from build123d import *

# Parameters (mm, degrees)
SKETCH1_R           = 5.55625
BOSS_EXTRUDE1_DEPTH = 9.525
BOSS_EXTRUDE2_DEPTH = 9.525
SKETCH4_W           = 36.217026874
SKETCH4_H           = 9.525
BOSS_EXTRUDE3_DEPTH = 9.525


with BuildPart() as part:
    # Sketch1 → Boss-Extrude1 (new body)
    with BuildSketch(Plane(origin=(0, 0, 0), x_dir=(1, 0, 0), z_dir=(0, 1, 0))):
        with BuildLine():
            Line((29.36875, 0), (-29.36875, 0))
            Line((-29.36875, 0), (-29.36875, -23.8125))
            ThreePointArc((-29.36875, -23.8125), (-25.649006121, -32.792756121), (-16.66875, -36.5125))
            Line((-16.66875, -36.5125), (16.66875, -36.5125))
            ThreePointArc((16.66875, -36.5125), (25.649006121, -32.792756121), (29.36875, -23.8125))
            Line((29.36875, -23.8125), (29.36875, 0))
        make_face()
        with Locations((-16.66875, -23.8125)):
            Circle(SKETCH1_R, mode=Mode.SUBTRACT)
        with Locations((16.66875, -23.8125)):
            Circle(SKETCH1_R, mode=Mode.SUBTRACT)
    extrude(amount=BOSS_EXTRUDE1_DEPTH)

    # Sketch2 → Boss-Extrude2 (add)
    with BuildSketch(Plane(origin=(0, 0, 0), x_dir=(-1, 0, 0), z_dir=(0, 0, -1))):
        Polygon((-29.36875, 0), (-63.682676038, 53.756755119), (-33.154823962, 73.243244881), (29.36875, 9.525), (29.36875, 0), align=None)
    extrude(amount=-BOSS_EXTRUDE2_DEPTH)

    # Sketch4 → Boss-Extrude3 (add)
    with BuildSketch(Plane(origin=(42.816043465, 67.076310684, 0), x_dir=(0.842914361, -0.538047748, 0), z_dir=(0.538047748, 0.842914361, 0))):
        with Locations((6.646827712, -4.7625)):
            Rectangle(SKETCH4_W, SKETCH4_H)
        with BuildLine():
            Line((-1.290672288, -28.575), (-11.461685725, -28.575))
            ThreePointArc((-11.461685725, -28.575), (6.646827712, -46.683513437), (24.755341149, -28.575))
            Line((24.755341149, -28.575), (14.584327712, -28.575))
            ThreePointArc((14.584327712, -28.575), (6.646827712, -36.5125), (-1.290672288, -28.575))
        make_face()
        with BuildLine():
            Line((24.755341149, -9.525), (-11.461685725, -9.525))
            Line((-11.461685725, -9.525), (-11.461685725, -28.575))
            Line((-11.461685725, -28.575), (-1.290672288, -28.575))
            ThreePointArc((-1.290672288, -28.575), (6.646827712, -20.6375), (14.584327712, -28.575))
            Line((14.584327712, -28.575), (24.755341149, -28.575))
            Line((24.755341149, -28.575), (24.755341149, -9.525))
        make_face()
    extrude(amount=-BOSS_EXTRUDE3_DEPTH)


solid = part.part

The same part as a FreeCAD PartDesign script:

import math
import FreeCAD as App
import Part
import Sketcher

V = App.Vector
Q = App.Units.Quantity

doc = App.newDocument("Part")
body = doc.addObject("PartDesign::Body", "Body")

# Sketch on XZ plane
sketch1 = body.newObject("Sketcher::SketchObject", "Sketch")
sketch1.AttachmentSupport = (doc.getObject("XZ_Plane"), [""])
sketch1.MapMode = "FlatFace"
sketch1.addGeometry(Part.LineSegment(V(29, 0, 0), V(-29, 0, 0)), False)
sketch1.addGeometry(Part.LineSegment(V(-29, 0, 0), V(-29, 24, 0)), False)
sketch1.addGeometry(Part.ArcOfCircle(Part.Circle(V(-17, 24, 0), V(0, 0, 1), 13), math.radians(90), math.radians(180)), False)
sketch1.addGeometry(Part.LineSegment(V(-17, 37, 0), V(17, 37, 0)), False)
sketch1.addGeometry(Part.ArcOfCircle(Part.Circle(V(17, 24, 0), V(0, 0, 1), 13), math.radians(0), math.radians(90)), False)
sketch1.addGeometry(Part.LineSegment(V(29, 24, 0), V(29, 0, 0)), False)
sketch1.addGeometry(Part.Circle(V(-17, 24, 0), V(0, 0, 1), 6), False)
sketch1.addGeometry(Part.Circle(V(17, 24, 0), V(0, 0, 1), 6), False)
sketch1.addConstraint(Sketcher.Constraint("Coincident", 0, 2, 1, 1))
sketch1.addConstraint(Sketcher.Constraint("Tangent", 1, 2, 2, 2))
sketch1.addConstraint(Sketcher.Constraint("Tangent", 2, 1, 3, 1))
sketch1.addConstraint(Sketcher.Constraint("Tangent", 3, 2, 4, 2))
sketch1.addConstraint(Sketcher.Constraint("Tangent", 4, 1, 5, 1))
sketch1.addConstraint(Sketcher.Constraint("Coincident", 5, 2, 0, 1))
sketch1.addConstraint(Sketcher.Constraint("Horizontal", 0))
sketch1.addConstraint(Sketcher.Constraint("Vertical", 1))
sketch1.addConstraint(Sketcher.Constraint("Horizontal", 3))
sketch1.addConstraint(Sketcher.Constraint("Vertical", 5))
sketch1.addConstraint(Sketcher.Constraint("Coincident", 6, 3, 2, 3))
sketch1.addConstraint(Sketcher.Constraint("Coincident", 7, 3, 4, 3))
sketch1.addConstraint(Sketcher.Constraint("Equal", 2, 4))
sketch1.addConstraint(Sketcher.Constraint("Equal", 6, 7))
sketch1.addConstraint(Sketcher.Constraint("Symmetric", 0, 2, 5, 2, -1, 1))
sketch1.addConstraint(Sketcher.Constraint("Radius", 2, Q("0.5 in")))
sketch1.addConstraint(Sketcher.Constraint("Diameter", 6, Q("0.4375 in")))
sketch1.addConstraint(Sketcher.Constraint("DistanceX", 0, 2, 0, 1, Q("2.3125 in")))
sketch1.addConstraint(Sketcher.Constraint("DistanceY", 1, 1, 1, 2, Q("0.9375 in")))
pad1 = body.newObject("PartDesign::Pad", "Pad")
pad1.Profile = sketch1
pad1.Length = Q("0.375 in")
pad1.Reversed = True

# Sketch on XY plane
sketch2 = body.newObject("Sketcher::SketchObject", "Sketch001")
sketch2.AttachmentSupport = (doc.getObject("XY_Plane"), [""])
sketch2.MapMode = "FlatFace"
sketch2.addGeometry(Part.LineSegment(V(64, 54, 0), V(29, 0, 0)), False)
sketch2.addGeometry(Part.LineSegment(V(29, 0, 0), V(-29, 0, 0)), False)
sketch2.addGeometry(Part.LineSegment(V(-29, 0, 0), V(-29, 10, 0)), False)
sketch2.addGeometry(Part.LineSegment(V(-29, 10, 0), V(33, 73, 0)), False)
sketch2.addGeometry(Part.LineSegment(V(33, 73, 0), V(64, 54, 0)), False)
sketch2.addConstraint(Sketcher.Constraint("Coincident", 0, 2, 1, 1))
sketch2.addConstraint(Sketcher.Constraint("Coincident", 1, 2, 2, 1))
sketch2.addConstraint(Sketcher.Constraint("Coincident", 2, 2, 3, 1))
sketch2.addConstraint(Sketcher.Constraint("Coincident", 3, 2, 4, 1))
sketch2.addConstraint(Sketcher.Constraint("Coincident", 4, 2, 0, 1))
sketch2.addConstraint(Sketcher.Constraint("Horizontal", 1))
sketch2.addConstraint(Sketcher.Constraint("Vertical", 2))
sketch2.addConstraint(Sketcher.Constraint("Symmetric", 0, 2, 1, 2, -1, 1))
sketch2.addConstraint(Sketcher.Constraint("Perpendicular", 0, 4))
sketch2.addConstraint(Sketcher.Constraint("DistanceX", 1, 2, 1, 1, Q("2.3125 in")))
sketch2.addConstraint(Sketcher.Constraint("DistanceY", 2, 1, 2, 2, Q("0.375 in")))
sketch2.addConstraint(Sketcher.Constraint("Distance", 0, Q("63.774872 mm")))
sketch2.addConstraint(Sketcher.Constraint("DistanceY", 4, 2, 3, 2, Q("19.48649 mm")))
sketch2.addConstraint(Sketcher.Constraint("Distance", 3, Q("89.270443 mm")))
pad2 = body.newObject("PartDesign::Pad", "Pad001")
pad2.Profile = sketch2
pad2.Length = Q("0.375 in")

# Sketch on an angled plane
sketch3 = body.newObject("Sketcher::SketchObject", "Sketch002")
sketch3.Placement = App.Placement(V(42.816043, 67.076311, 0), App.Rotation(V(0.842914361, -0.538047748, 0), V(0, 0, -0.999999999), V(0.538047748, 0.842914361, 0), "ZXY"))
sketch3.addGeometry(Part.LineSegment(V(-11, 0, 0), V(-11, -29, 0)), False)
sketch3.addGeometry(Part.ArcOfCircle(Part.Circle(V(7, -29, 0), V(0, 0, 1), 18), math.radians(180), math.radians(360)), False)
sketch3.addGeometry(Part.LineSegment(V(25, -29, 0), V(25, 0, 0)), False)
sketch3.addGeometry(Part.LineSegment(V(25, 0, 0), V(-11, 0, 0)), False)
sketch3.addGeometry(Part.Circle(V(7, -29, 0), V(0, 0, 1), 8), False)
sketch3.addConstraint(Sketcher.Constraint("Tangent", 0, 2, 1, 1))
sketch3.addConstraint(Sketcher.Constraint("Tangent", 1, 2, 2, 1))
sketch3.addConstraint(Sketcher.Constraint("Coincident", 2, 2, 3, 1))
sketch3.addConstraint(Sketcher.Constraint("Coincident", 3, 2, 0, 1))
sketch3.addConstraint(Sketcher.Constraint("Vertical", 0))
sketch3.addConstraint(Sketcher.Constraint("Vertical", 2))
sketch3.addConstraint(Sketcher.Constraint("Horizontal", 3))
sketch3.addConstraint(Sketcher.Constraint("Coincident", 4, 3, 1, 3))
sketch3.addConstraint(Sketcher.Constraint("PointOnObject", 2, 2, -1))
sketch3.addConstraint(Sketcher.Constraint("Diameter", 4, Q("0.625 in")))
sketch3.addConstraint(Sketcher.Constraint("DistanceY", 0, 2, 0, 1, Q("1.125 in")))
sketch3.addConstraint(Sketcher.Constraint("Radius", 1, Q("18.108513 mm")))
sketch3.addConstraint(Sketcher.Constraint("DistanceX", -1, 1, 1, 2, Q("24.755341 mm")))
pad3 = body.newObject("PartDesign::Pad", "Pad002")
pad3.Profile = sketch3
pad3.Length = Q("0.375 in")
pad3.Reversed = True

doc.recompute()
